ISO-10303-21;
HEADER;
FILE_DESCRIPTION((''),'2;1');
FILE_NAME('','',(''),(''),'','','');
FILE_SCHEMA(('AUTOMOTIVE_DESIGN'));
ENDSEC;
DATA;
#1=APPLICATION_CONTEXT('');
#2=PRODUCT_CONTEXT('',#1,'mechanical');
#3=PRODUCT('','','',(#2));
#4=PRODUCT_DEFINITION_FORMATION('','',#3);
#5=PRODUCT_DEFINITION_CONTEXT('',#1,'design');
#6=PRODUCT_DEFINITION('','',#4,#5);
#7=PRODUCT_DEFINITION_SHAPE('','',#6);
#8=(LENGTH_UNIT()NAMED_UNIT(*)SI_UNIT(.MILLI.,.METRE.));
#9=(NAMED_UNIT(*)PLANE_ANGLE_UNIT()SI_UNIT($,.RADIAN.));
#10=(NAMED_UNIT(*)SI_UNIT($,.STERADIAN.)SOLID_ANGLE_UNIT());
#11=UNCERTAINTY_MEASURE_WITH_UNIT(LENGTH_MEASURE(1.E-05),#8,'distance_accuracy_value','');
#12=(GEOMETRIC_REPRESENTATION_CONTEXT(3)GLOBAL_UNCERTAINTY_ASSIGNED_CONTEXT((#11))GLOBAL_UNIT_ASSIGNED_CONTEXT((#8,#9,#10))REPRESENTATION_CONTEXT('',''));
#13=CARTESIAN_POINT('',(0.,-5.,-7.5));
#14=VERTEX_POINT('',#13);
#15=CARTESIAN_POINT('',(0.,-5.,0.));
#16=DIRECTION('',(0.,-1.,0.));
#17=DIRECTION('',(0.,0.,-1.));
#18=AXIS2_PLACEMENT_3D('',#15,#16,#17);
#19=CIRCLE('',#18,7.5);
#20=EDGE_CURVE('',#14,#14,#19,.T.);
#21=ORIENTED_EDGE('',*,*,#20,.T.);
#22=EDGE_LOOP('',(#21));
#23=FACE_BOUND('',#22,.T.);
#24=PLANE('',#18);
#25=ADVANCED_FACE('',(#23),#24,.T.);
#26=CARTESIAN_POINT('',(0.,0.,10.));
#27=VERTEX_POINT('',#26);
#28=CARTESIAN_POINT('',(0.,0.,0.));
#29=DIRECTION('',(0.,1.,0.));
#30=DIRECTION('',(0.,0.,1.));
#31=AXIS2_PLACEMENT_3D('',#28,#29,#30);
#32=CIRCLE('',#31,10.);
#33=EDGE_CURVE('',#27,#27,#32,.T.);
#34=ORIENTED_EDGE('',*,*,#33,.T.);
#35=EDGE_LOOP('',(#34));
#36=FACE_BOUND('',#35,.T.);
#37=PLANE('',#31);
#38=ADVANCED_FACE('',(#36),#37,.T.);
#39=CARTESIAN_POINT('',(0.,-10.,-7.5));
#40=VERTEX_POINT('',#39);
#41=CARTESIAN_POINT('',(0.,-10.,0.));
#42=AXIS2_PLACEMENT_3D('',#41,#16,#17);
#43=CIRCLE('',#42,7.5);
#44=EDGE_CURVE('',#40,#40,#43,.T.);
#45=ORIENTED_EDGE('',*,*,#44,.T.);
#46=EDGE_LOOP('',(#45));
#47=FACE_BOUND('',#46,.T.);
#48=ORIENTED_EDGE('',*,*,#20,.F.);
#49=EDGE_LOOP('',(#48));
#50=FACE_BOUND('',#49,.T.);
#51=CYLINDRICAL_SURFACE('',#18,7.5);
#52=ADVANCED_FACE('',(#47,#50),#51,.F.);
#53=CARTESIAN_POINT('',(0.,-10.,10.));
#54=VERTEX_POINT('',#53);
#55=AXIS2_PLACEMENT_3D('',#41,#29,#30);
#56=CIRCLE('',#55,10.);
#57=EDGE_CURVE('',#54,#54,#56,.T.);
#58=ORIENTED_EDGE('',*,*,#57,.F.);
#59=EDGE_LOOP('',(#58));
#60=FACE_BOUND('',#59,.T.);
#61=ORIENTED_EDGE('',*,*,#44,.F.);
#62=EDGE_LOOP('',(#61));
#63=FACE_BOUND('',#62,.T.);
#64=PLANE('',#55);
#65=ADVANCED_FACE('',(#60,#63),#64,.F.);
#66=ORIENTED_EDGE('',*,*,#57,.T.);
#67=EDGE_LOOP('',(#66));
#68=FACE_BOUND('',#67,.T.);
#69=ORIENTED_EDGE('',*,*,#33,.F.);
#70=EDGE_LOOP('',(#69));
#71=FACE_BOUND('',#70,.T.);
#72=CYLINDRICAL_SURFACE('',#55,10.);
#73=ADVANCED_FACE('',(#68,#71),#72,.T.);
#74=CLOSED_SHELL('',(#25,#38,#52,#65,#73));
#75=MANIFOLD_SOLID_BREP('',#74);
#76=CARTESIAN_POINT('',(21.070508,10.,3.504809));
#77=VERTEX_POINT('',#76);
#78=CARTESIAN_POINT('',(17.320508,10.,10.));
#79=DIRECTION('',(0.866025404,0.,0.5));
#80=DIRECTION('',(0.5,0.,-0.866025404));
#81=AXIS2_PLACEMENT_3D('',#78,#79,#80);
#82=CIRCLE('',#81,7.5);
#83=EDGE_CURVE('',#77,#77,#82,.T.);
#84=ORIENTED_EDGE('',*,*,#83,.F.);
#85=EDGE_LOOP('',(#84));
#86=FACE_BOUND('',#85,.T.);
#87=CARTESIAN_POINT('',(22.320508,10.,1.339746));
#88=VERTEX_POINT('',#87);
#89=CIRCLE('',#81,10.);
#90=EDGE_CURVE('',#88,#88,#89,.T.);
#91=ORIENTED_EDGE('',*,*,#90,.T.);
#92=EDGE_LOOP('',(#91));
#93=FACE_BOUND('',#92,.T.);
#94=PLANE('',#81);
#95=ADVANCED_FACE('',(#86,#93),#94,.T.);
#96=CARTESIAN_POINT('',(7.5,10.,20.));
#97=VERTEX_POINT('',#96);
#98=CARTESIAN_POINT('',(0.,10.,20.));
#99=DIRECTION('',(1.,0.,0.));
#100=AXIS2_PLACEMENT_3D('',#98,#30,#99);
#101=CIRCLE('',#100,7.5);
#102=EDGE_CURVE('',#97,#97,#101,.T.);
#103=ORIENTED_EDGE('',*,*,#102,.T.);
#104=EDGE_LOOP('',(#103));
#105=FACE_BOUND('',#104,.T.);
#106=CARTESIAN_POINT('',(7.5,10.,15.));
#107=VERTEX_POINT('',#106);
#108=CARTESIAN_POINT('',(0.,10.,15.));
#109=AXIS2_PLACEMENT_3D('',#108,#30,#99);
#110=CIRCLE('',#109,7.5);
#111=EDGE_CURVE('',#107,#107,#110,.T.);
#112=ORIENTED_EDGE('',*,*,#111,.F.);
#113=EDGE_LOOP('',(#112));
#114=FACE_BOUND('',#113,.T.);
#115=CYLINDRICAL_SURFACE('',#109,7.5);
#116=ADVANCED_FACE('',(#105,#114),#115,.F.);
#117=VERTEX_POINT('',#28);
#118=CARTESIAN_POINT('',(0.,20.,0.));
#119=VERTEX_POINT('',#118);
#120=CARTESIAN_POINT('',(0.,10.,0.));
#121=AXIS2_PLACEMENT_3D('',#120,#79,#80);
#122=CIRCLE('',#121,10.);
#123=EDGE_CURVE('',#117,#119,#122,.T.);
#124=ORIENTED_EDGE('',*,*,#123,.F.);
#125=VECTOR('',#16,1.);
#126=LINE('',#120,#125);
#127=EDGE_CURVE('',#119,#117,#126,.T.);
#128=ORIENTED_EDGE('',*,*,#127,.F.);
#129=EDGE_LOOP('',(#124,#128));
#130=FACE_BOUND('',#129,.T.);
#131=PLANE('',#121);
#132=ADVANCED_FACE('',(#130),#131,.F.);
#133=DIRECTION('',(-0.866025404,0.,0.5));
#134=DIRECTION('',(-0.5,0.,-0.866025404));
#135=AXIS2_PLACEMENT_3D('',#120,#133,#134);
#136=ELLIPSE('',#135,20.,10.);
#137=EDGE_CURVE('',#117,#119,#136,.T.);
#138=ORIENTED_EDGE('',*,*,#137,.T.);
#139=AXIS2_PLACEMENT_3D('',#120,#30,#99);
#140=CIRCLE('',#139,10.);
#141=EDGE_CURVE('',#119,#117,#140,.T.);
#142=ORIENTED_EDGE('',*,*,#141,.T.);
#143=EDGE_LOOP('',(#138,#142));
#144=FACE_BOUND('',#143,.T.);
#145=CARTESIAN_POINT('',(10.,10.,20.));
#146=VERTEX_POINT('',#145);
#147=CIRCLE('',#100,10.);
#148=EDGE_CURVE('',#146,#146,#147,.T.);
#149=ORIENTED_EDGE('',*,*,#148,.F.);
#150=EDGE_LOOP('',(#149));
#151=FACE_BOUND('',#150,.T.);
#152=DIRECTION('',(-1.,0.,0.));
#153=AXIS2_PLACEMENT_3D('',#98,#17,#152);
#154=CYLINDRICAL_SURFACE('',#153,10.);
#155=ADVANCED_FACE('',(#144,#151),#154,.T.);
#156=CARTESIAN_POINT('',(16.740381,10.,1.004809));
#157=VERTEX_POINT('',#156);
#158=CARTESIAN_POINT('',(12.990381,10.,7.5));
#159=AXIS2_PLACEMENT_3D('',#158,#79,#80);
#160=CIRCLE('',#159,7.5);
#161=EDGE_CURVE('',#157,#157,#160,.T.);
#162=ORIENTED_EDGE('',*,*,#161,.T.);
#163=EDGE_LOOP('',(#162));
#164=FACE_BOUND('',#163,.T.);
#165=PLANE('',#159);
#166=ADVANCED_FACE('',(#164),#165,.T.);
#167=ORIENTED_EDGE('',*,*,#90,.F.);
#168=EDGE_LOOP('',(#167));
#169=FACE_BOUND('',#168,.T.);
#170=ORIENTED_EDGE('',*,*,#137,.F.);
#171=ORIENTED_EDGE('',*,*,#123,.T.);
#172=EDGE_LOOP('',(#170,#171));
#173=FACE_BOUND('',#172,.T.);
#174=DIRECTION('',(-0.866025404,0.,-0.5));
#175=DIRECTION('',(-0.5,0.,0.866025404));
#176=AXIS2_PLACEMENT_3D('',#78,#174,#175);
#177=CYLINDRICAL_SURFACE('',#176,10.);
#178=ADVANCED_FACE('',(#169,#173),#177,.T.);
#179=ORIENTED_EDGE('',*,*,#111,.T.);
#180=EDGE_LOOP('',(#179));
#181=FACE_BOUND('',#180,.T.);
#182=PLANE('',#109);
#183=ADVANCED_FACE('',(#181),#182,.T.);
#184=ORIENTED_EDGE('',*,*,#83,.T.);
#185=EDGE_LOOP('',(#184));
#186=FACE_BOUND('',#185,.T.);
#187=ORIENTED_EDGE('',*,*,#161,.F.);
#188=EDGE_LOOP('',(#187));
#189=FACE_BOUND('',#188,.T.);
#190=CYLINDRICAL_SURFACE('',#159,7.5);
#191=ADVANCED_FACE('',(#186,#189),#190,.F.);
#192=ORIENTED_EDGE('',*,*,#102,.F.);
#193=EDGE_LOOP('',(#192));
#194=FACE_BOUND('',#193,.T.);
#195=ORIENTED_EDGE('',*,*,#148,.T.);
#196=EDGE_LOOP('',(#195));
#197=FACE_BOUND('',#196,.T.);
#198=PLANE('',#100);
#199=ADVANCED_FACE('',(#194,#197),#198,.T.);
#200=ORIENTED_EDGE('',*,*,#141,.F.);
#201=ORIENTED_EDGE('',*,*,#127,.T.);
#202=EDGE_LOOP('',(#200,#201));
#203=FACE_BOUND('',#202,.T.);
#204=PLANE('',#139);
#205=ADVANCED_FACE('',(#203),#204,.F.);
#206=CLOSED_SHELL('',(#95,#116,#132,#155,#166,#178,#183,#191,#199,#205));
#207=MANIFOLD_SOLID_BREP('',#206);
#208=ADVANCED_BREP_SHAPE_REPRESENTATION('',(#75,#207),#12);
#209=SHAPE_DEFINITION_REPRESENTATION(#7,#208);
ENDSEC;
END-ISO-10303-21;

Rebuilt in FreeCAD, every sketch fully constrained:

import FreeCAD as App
import Part
import Sketcher
from FreeCAD import Vector
Q = App.Units.Quantity

doc = App.newDocument("Part")
body = doc.addObject("PartDesign::Body", "Body")

# Sketch on XZ plane
sketch1 = body.newObject("Sketcher::SketchObject", "Sketch")
sketch1.AttachmentSupport = (doc.getObject("XZ_Plane"), [""])
sketch1.MapMode = "FlatFace"
sketch1.addGeometry(Part.Circle(Vector(0, 0, 0), Vector(0, 0, 1), 10), False)
sketch1.addConstraint([
    Sketcher.Constraint("Coincident", 0, 3, -1, 1),
    Sketcher.Constraint("Diameter", 0, Q("20 mm")),
])
pad1 = body.newObject("PartDesign::Pad", "Pad")
pad1.Profile = sketch1
pad1.Length = 10

# Sketch on XZ plane
sketch2 = body.newObject("Sketcher::SketchObject", "Sketch001")
sketch2.AttachmentSupport = (doc.getObject("XZ_Plane"), [""])
sketch2.MapMode = "FlatFace"
sketch2.AttachmentOffset = App.Placement(Vector(0, 0, 10), App.Rotation())
sketch2.addGeometry(Part.Circle(Vector(0, 0, 0), Vector(0, 0, 1), 8), False)
sketch2.addConstraint([
    Sketcher.Constraint("Coincident", 0, 3, -1, 1),
    Sketcher.Constraint("Diameter", 0, Q("15 mm")),
])
pocket1 = body.newObject("PartDesign::Pocket", "Pocket")
pocket1.Profile = sketch2
pocket1.Length = 5
body2 = doc.addObject("PartDesign::Body", "Body001")

# Sketch on an angled plane
sketch3 = body2.newObject("Sketcher::SketchObject", "Sketch002")
sketch3.Placement = App.Placement(Vector(0, 0, 0), App.Rotation(Vector(0, -1, 0), Vector(0.5, 0, -0.866025404), Vector(0.866025404, 0, 0.5), "ZXY"))
sketch3.addGeometry(Part.Circle(Vector(-10, 0, 0), Vector(0, 0, 1), 10), False)
sketch3.addConstraint([
    Sketcher.Constraint("PointOnObject", 0, 3, -1),
    Sketcher.Constraint("Diameter", 0, Q("20 mm")),
    Sketcher.Constraint("DistanceX", 0, 3, -1, 1, Q("10 mm")),
])
pad2 = body2.newObject("PartDesign::Pad", "Pad001")
pad2.Profile = sketch3
pad2.Length = 20

# Sketch on XY plane
sketch4 = body2.newObject("Sketcher::SketchObject", "Sketch003")
sketch4.AttachmentSupport = (doc.getObject("XY_Plane001"), [""])
sketch4.MapMode = "FlatFace"
sketch4.addGeometry(Part.Circle(Vector(0, 10, 0), Vector(0, 0, 1), 10), False)
sketch4.addConstraint([
    Sketcher.Constraint("PointOnObject", 0, 3, -2),
    Sketcher.Constraint("Diameter", 0, Q("20 mm")),
    Sketcher.Constraint("DistanceY", -1, 1, 0, 3, Q("10 mm")),
])
pad3 = body2.newObject("PartDesign::Pad", "Pad002")
pad3.Profile = sketch4
pad3.Length = 20

# Sketch on XY plane
sketch5 = body2.newObject("Sketcher::SketchObject", "Sketch004")
sketch5.AttachmentSupport = (doc.getObject("XY_Plane001"), [""])
sketch5.MapMode = "FlatFace"
sketch5.AttachmentOffset = App.Placement(Vector(0, 0, 20), App.Rotation())
sketch5.addGeometry(Part.Circle(Vector(0, 10, 0), Vector(0, 0, 1), 8), False)
sketch5.addConstraint([
    Sketcher.Constraint("PointOnObject", 0, 3, -2),
    Sketcher.Constraint("Diameter", 0, Q("15 mm")),
    Sketcher.Constraint("DistanceY", -1, 1, 0, 3, Q("10 mm")),
])
pocket2 = body2.newObject("PartDesign::Pocket", "Pocket001")
pocket2.Profile = sketch5
pocket2.Length = 5

# Sketch on an angled plane
sketch6 = body2.newObject("Sketcher::SketchObject", "Sketch005")
sketch6.Placement = App.Placement(Vector(17.320508, 0, 10), App.Rotation(Vector(0.5, 0, -0.866025404), Vector(0, 1, 0), Vector(0.866025404, 0, 0.5), "ZXY"))
sketch6.addGeometry(Part.Circle(Vector(0, 10, 0), Vector(0, 0, 1), 8), False)
sketch6.addConstraint([
    Sketcher.Constraint("PointOnObject", 0, 3, -2),
    Sketcher.Constraint("Diameter", 0, Q("15 mm")),
    Sketcher.Constraint("DistanceY", -1, 1, 0, 3, Q("10 mm")),
])
pocket3 = body2.newObject("PartDesign::Pocket", "Pocket002")
pocket3.Profile = sketch6
pocket3.Length = 5

doc.recompute()
